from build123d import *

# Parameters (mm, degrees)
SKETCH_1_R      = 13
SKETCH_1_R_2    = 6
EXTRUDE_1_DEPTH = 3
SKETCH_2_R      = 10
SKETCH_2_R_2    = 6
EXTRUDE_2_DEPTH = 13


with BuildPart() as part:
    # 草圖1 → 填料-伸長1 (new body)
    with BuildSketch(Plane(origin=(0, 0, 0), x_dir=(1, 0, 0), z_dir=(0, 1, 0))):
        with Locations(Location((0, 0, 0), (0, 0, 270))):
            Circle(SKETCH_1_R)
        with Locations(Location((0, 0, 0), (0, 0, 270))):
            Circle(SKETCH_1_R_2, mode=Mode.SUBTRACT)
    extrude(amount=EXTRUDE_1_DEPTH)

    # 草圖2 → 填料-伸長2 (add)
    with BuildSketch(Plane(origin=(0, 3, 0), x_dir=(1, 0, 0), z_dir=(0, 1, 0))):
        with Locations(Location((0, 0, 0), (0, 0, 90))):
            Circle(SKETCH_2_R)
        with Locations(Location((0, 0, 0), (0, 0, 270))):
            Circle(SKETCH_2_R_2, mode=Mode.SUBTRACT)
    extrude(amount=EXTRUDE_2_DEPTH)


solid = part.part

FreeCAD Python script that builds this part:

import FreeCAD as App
import Part
import Sketcher

doc = App.newDocument("Part")
params = doc.addObject("Spreadsheet::Sheet", "Params")
for row, (alias, value) in enumerate([
    ("sketch1_diameter", "26 mm"),
    ("sketch1_diameter2", "12 mm"),
    ("pad1_length", "3 mm"),
    ("sketch2_diameter", "20 mm"),
    ("sketch2_diameter2", "12 mm"),
    ("pad2_length", "13 mm"),
], start=1):
    params.set(f"A{row}", alias)
    params.set(f"B{row}", "=" + value)
    params.setAlias(f"B{row}", alias)

body = doc.addObject("PartDesign::Body", "Body")

sketch1 = doc.addObject("Sketcher::SketchObject", "Sketch")
body.addObject(sketch1)
sketch1.AttachmentSupport = (doc.XZ_Plane, [""])
sketch1.MapMode = "FlatFace"
sketch1.addGeometry(Part.Circle(App.Vector(0, 0, 0), App.Vector(0, 0, 1), 13), False)
sketch1.addGeometry(Part.Circle(App.Vector(0, 0, 0), App.Vector(0, 0, 1), 6), False)
sketch1.addConstraint(Sketcher.Constraint("Coincident", 0, 3, -1, 1))
sketch1.addConstraint(Sketcher.Constraint("Coincident", 1, 3, -1, 1))
sketch1.addConstraint(Sketcher.Constraint("Diameter", 0, 26.0))
sketch1.addConstraint(Sketcher.Constraint("Diameter", 1, 12.0))
sketch1.setExpression("Constraints[2]", "Params.sketch1_diameter")
sketch1.setExpression("Constraints[3]", "Params.sketch1_diameter2")
pad1 = doc.addObject("PartDesign::Pad", "Pad")
body.addObject(pad1)
pad1.Profile = sketch1
pad1.setExpression("Length", "Params.pad1_length")
pad1.Reversed = True

sketch2 = doc.addObject("Sketcher::SketchObject", "Sketch001")
body.addObject(sketch2)
sketch2.AttachmentSupport = (doc.XZ_Plane, [""])
sketch2.MapMode = "FlatFace"
sketch2.AttachmentOffset = App.Placement(App.Vector(0, 0, -3), App.Rotation())
sketch2.addGeometry(Part.Circle(App.Vector(0, 0, 0), App.Vector(0, 0, 1), 10), False)
sketch2.addGeometry(Part.Circle(App.Vector(0, 0, 0), App.Vector(0, 0, 1), 6), False)
sketch2.addConstraint(Sketcher.Constraint("Coincident", 0, 3, -1, 1))
sketch2.addConstraint(Sketcher.Constraint("Coincident", 1, 3, -1, 1))
sketch2.addConstraint(Sketcher.Constraint("Diameter", 0, 20.0))
sketch2.addConstraint(Sketcher.Constraint("Diameter", 1, 12.0))
sketch2.setExpression("Constraints[2]", "Params.sketch2_diameter")
sketch2.setExpression("Constraints[3]", "Params.sketch2_diameter2")
pad2 = doc.addObject("PartDesign::Pad", "Pad001")
body.addObject(pad2)
pad2.Profile = sketch2
pad2.setExpression("Length", "Params.pad2_length")
pad2.Reversed = True

doc.recompute()
